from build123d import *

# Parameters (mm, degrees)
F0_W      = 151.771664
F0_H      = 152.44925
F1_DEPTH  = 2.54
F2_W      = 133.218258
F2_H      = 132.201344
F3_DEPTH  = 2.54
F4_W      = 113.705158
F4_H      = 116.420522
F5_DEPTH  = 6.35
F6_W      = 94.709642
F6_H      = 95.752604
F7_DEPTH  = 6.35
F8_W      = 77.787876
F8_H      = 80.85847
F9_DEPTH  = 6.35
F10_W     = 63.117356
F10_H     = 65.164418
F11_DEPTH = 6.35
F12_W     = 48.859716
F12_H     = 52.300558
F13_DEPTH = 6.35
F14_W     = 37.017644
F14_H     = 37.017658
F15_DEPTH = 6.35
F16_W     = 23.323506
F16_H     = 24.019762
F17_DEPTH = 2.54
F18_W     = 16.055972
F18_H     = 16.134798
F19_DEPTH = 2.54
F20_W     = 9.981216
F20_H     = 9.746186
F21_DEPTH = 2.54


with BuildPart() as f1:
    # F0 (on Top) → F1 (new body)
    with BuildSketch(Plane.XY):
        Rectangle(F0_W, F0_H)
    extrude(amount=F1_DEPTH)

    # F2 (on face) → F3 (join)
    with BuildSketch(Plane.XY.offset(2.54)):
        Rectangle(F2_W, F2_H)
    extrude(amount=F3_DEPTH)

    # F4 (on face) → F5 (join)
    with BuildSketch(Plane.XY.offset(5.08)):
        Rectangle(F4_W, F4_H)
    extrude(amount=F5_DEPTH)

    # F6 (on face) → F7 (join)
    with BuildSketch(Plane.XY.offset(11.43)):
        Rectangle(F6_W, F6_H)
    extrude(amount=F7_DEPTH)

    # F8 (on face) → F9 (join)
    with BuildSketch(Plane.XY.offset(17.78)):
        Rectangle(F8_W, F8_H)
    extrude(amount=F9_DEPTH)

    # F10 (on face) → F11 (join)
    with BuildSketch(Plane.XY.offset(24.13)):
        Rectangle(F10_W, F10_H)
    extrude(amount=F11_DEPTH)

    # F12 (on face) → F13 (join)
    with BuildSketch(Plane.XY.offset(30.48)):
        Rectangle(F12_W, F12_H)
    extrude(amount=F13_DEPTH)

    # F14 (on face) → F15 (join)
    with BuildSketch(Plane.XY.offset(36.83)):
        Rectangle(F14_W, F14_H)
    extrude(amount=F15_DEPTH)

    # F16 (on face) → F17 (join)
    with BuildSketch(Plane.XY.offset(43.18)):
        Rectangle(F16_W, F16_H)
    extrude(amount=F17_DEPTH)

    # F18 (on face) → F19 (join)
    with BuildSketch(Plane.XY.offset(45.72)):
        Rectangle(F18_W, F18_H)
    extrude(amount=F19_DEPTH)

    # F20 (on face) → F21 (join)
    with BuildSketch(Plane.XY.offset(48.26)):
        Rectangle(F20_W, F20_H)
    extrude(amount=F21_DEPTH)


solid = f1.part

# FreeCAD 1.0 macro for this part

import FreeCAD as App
import Part
import Sketcher
from FreeCAD import Vector
Q = App.Units.Quantity


def add_polygon(sketch, points):
    """Adds a closed chain of lines whose ends are joined by coincident constraints."""
    first, n = sketch.GeometryCount, len(points)
    for a, b in zip(points, points[1:] + points[:1]):
        sketch.addGeometry(Part.LineSegment(App.Vector(*a, 0), App.Vector(*b, 0)), False)
    for i in range(n):
        sketch.addConstraint(Sketcher.Constraint("Coincident", first + i, 2, first + (i + 1) % n, 1))

doc = App.newDocument("Part")
body = doc.addObject("PartDesign::Body", "Body")

sketch1 = body.newObject("Sketcher::SketchObject", "Sketch")
sketch1.AttachmentSupport = (doc.getObject("XY_Plane"), [""])
sketch1.MapMode = "FlatFace"
add_polygon(sketch1, [(-76, 76), (-76, -76), (76, -76), (76, 76)])
sketch1.addConstraint([
    Sketcher.Constraint("Vertical", 0),
    Sketcher.Constraint("Horizontal", 1),
    Sketcher.Constraint("Vertical", 2),
    Sketcher.Constraint("Horizontal", 3),
    Sketcher.Constraint("Symmetric", 0, 2, 2, 2, -1, 1),
    Sketcher.Constraint("DistanceY", 0, 2, 0, 1, Q("152.44925 mm")),
    Sketcher.Constraint("DistanceX", 1, 1, 1, 2, Q("151.771664 mm")),
])
pad1 = body.newObject("PartDesign::Pad", "Pad")
pad1.Profile = sketch1
pad1.Length = Q("0.1 in")

sketch2 = body.newObject("Sketcher::SketchObject", "Sketch001")
sketch2.AttachmentSupport = (doc.getObject("XY_Plane"), [""])
sketch2.MapMode = "FlatFace"
sketch2.AttachmentOffset = App.Placement(Vector(0, 0, 0.1 * 25.4), App.Rotation())
add_polygon(sketch2, [(-67, 66), (-67, -66), (67, -66), (67, 66)])
sketch2.addConstraint([
    Sketcher.Constraint("Vertical", 0),
    Sketcher.Constraint("Horizontal", 1),
    Sketcher.Constraint("Vertical", 2),
    Sketcher.Constraint("Horizontal", 3),
    Sketcher.Constraint("Symmetric", 0, 2, 2, 2, -1, 1),
    Sketcher.Constraint("DistanceX", 1, 1, 1, 2, Q("133.218258 mm")),
    Sketcher.Constraint("DistanceY", 0, 2, 0, 1, Q("132.201344 mm")),
])
pad2 = body.newObject("PartDesign::Pad", "Pad001")
pad2.Profile = sketch2
pad2.Length = Q("0.1 in")

sketch3 = body.newObject("Sketcher::SketchObject", "Sketch002")
sketch3.AttachmentSupport = (doc.getObject("XY_Plane"), [""])
sketch3.MapMode = "FlatFace"
sketch3.AttachmentOffset = App.Placement(Vector(0, 0, 0.2 * 25.4), App.Rotation())
add_polygon(sketch3, [(-57, 58), (-57, -58), (57, -58), (57, 58)])
sketch3.addConstraint([
    Sketcher.Constraint("Vertical", 0),
    Sketcher.Constraint("Horizontal", 1),
    Sketcher.Constraint("Vertical", 2),
    Sketcher.Constraint("Horizontal", 3),
    Sketcher.Constraint("Symmetric", 0, 2, 2, 2, -1, 1),
    Sketcher.Constraint("DistanceX", 1, 1, 1, 2, Q("113.705158 mm")),
    Sketcher.Constraint("DistanceY", 0, 2, 0, 1, Q("116.420522 mm")),
])
pad3 = body.newObject("PartDesign::Pad", "Pad002")
pad3.Profile = sketch3
pad3.Length = Q("0.25 in")

sketch4 = body.newObject("Sketcher::SketchObject", "Sketch003")
sketch4.AttachmentSupport = (doc.getObject("XY_Plane"), [""])
sketch4.MapMode = "FlatFace"
sketch4.AttachmentOffset = App.Placement(Vector(0, 0, 0.45 * 25.4), App.Rotation())
add_polygon(sketch4, [(-47, 48), (-47, -48), (47, -48), (47, 48)])
sketch4.addConstraint([
    Sketcher.Constraint("Vertical", 0),
    Sketcher.Constraint("Horizontal", 1),
    Sketcher.Constraint("Vertical", 2),
    Sketcher.Constraint("Horizontal", 3),
    Sketcher.Constraint("Symmetric", 0, 2, 2, 2, -1, 1),
    Sketcher.Constraint("DistanceX", 1, 1, 1, 2, Q("94.709642 mm")),
    Sketcher.Constraint("DistanceY", 0, 2, 0, 1, Q("95.752604 mm")),
])
pad4 = body.newObject("PartDesign::Pad", "Pad003")
pad4.Profile = sketch4
pad4.Length = Q("0.25 in")

sketch5 = body.newObject("Sketcher::SketchObject", "Sketch004")
sketch5.AttachmentSupport = (doc.getObject("XY_Plane"), [""])
sketch5.MapMode = "FlatFace"
sketch5.AttachmentOffset = App.Placement(Vector(0, 0, 0.7 * 25.4), App.Rotation())
add_polygon(sketch5, [(-39, 40), (-39, -40), (39, -40), (39, 40)])
sketch5.addConstraint([
    Sketcher.Constraint("Vertical", 0),
    Sketcher.Constraint("Horizontal", 1),
    Sketcher.Constraint("Vertical", 2),
    Sketcher.Constraint("Horizontal", 3),
    Sketcher.Constraint("Symmetric", 0, 2, 2, 2, -1, 1),
    Sketcher.Constraint("DistanceY", 0, 2, 0, 1, Q("80.85847 mm")),
    Sketcher.Constraint("DistanceX", 1, 1, 1, 2, Q("77.787876 mm")),
])
pad5 = body.newObject("PartDesign::Pad", "Pad004")
pad5.Profile = sketch5
pad5.Length = Q("0.25 in")

sketch6 = body.newObject("Sketcher::SketchObject", "Sketch005")
sketch6.AttachmentSupport = (doc.getObject("XY_Plane"), [""])
sketch6.MapMode = "FlatFace"
sketch6.AttachmentOffset = App.Placement(Vector(0, 0, 0.95 * 25.4), App.Rotation())
add_polygon(sketch6, [(-32, 33), (-32, -33), (32, -33), (32, 33)])
sketch6.addConstraint([
    Sketcher.Constraint("Vertical", 0),
    Sketcher.Constraint("Horizontal", 1),
    Sketcher.Constraint("Vertical", 2),
    Sketcher.Constraint("Horizontal", 3),
    Sketcher.Constraint("Symmetric", 0, 2, 2, 2, -1, 1),
    Sketcher.Constraint("DistanceX", 1, 1, 1, 2, Q("63.117356 mm")),
    Sketcher.Constraint("DistanceY", 0, 2, 0, 1, Q("65.164418 mm")),
])
pad6 = body.newObject("PartDesign::Pad", "Pad005")
pad6.Profile = sketch6
pad6.Length = Q("0.25 in")

sketch7 = body.newObject("Sketcher::SketchObject", "Sketch006")
sketch7.AttachmentSupport = (doc.getObject("XY_Plane"), [""])
sketch7.MapMode = "FlatFace"
sketch7.AttachmentOffset = App.Placement(Vector(0, 0, 1.2 * 25.4), App.Rotation())
add_polygon(sketch7, [(-24, 26), (-24, -26), (24, -26), (24, 26)])
sketch7.addConstraint([
    Sketcher.Constraint("Vertical", 0),
    Sketcher.Constraint("Horizontal", 1),
    Sketcher.Constraint("Vertical", 2),
    Sketcher.Constraint("Horizontal", 3),
    Sketcher.Constraint("Symmetric", 0, 2, 2, 2, -1, 1),
    Sketcher.Constraint("DistanceY", 0, 2, 0, 1, Q("52.300558 mm")),
    Sketcher.Constraint("DistanceX", 1, 1, 1, 2, Q("48.859716 mm")),
])
pad7 = body.newObject("PartDesign::Pad", "Pad006")
pad7.Profile = sketch7
pad7.Length = Q("0.25 in")

sketch8 = body.newObject("Sketcher::SketchObject", "Sketch007")
sketch8.AttachmentSupport = (doc.getObject("XY_Plane"), [""])
sketch8.MapMode = "FlatFace"
sketch8.AttachmentOffset = App.Placement(Vector(0, 0, 1.45 * 25.4), App.Rotation())
add_polygon(sketch8, [(-19, 19), (-19, -19), (19, -19), (19, 19)])
sketch8.addConstraint([
    Sketcher.Constraint("Vertical", 0),
    Sketcher.Constraint("Horizontal", 1),
    Sketcher.Constraint("Vertical", 2),
    Sketcher.Constraint("Horizontal", 3),
    Sketcher.Constraint("Symmetric", 0, 2, 2, 2, -1, 1),
    Sketcher.Constraint("DistanceX", 1, 1, 1, 2, Q("37.017644 mm")),
    Sketcher.Constraint("DistanceY", 0, 2, 0, 1, Q("37.017658 mm")),
])
pad8 = body.newObject("PartDesign::Pad", "Pad007")
pad8.Profile = sketch8
pad8.Length = Q("0.25 in")

sketch9 = body.newObject("Sketcher::SketchObject", "Sketch008")
sketch9.AttachmentSupport = (doc.getObject("XY_Plane"), [""])
sketch9.MapMode = "FlatFace"
sketch9.AttachmentOffset = App.Placement(Vector(0, 0, 1.7 * 25.4), App.Rotation())
add_polygon(sketch9, [(-12, 12), (-12, -12), (12, -12), (12, 12)])
sketch9.addConstraint([
    Sketcher.Constraint("Vertical", 0),
    Sketcher.Constraint("Horizontal", 1),
    Sketcher.Constraint("Vertical", 2),
    Sketcher.Constraint("Horizontal", 3),
    Sketcher.Constraint("Symmetric", 0, 2, 2, 2, -1, 1),
    Sketcher.Constraint("DistanceY", 0, 2, 0, 1, Q("24.019762 mm")),
    Sketcher.Constraint("DistanceX", 1, 1, 1, 2, Q("23.323506 mm")),
])
pad9 = body.newObject("PartDesign::Pad", "Pad008")
pad9.Profile = sketch9
pad9.Length = Q("0.1 in")

sketch10 = body.newObject("Sketcher::SketchObject", "Sketch009")
sketch10.AttachmentSupport = (doc.getObject("XY_Plane"), [""])
sketch10.MapMode = "FlatFace"
sketch10.AttachmentOffset = App.Placement(Vector(0, 0, 1.8 * 25.4), App.Rotation())
add_polygon(sketch10, [(-8, 8), (-8, -8), (8, -8), (8, 8)])
sketch10.addConstraint([
    Sketcher.Constraint("Vertical", 0),
    Sketcher.Constraint("Horizontal", 1),
    Sketcher.Constraint("Vertical", 2),
    Sketcher.Constraint("Horizontal", 3),
    Sketcher.Constraint("Symmetric", 0, 2, 2, 2, -1, 1),
    Sketcher.Constraint("DistanceY", 0, 2, 0, 1, Q("16.134798 mm")),
    Sketcher.Constraint("DistanceX", 1, 1, 1, 2, Q("16.055972 mm")),
])
pad10 = body.newObject("PartDesign::Pad", "Pad009")
pad10.Profile = sketch10
pad10.Length = Q("0.1 in")

sketch11 = body.newObject("Sketcher::SketchObject", "Sketch010")
sketch11.AttachmentSupport = (doc.getObject("XY_Plane"), [""])
sketch11.MapMode = "FlatFace"
sketch11.AttachmentOffset = App.Placement(Vector(0, 0, 1.9 * 25.4), App.Rotation())
add_polygon(sketch11, [(-5, 5), (-5, -5), (5, -5), (5, 5)])
sketch11.addConstraint([
    Sketcher.Constraint("Vertical", 0),
    Sketcher.Constraint("Horizontal", 1),
    Sketcher.Constraint("Vertical", 2),
    Sketcher.Constraint("Horizontal", 3),
    Sketcher.Constraint("Symmetric", 0, 2, 2, 2, -1, 1),
    Sketcher.Constraint("DistanceX", 1, 1, 1, 2, Q("9.981216 mm")),
    Sketcher.Constraint("DistanceY", 0, 2, 0, 1, Q("9.746186 mm")),
])
pad11 = body.newObject("PartDesign::Pad", "Pad010")
pad11.Profile = sketch11
pad11.Length = Q("0.1 in")

doc.recompute()
